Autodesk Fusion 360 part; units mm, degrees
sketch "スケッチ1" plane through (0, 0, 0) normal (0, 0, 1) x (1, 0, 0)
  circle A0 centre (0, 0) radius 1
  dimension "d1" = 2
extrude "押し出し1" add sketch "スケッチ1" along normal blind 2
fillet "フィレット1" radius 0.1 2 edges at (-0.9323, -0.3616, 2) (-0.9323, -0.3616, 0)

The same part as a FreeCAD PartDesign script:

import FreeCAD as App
import Part
import Sketcher
from FreeCAD import Vector
Q = App.Units.Quantity


def edges_at(feature, points):
    """Names of the edges that pass closest to the given points."""
    edges = feature.Shape.Edges
    near = lambda p: min(range(len(edges)), key=lambda i: edges[i].distToShape(Part.Vertex(*p))[0])
    return sorted({f"Edge{near(p) + 1}" for p in points})

doc = App.newDocument("Part")
body = doc.addObject("PartDesign::Body", "Body")

# Sketch on XY plane
sketch1 = body.newObject("Sketcher::SketchObject", "Sketch")
sketch1.AttachmentSupport = (doc.getObject("XY_Plane"), [""])
sketch1.MapMode = "FlatFace"
sketch1.addGeometry(Part.Circle(Vector(0, 0, 0), Vector(0, 0, 1), 1), False)
sketch1.addConstraint([
    Sketcher.Constraint("Coincident", 0, 3, -1, 1),
    Sketcher.Constraint("Diameter", 0, Q("2 mm")),
])
pad1 = body.newObject("PartDesign::Pad", "Pad")
pad1.Profile = sketch1
pad1.Length = 2
doc.recompute()

fillet = body.newObject("PartDesign::Fillet", "Fillet")
fillet.Base = (pad1, edges_at(pad1, [(-0.932, -0.362, 2), (-0.932, -0.362, 0)]))
fillet.Radius = 0.1

doc.recompute()
